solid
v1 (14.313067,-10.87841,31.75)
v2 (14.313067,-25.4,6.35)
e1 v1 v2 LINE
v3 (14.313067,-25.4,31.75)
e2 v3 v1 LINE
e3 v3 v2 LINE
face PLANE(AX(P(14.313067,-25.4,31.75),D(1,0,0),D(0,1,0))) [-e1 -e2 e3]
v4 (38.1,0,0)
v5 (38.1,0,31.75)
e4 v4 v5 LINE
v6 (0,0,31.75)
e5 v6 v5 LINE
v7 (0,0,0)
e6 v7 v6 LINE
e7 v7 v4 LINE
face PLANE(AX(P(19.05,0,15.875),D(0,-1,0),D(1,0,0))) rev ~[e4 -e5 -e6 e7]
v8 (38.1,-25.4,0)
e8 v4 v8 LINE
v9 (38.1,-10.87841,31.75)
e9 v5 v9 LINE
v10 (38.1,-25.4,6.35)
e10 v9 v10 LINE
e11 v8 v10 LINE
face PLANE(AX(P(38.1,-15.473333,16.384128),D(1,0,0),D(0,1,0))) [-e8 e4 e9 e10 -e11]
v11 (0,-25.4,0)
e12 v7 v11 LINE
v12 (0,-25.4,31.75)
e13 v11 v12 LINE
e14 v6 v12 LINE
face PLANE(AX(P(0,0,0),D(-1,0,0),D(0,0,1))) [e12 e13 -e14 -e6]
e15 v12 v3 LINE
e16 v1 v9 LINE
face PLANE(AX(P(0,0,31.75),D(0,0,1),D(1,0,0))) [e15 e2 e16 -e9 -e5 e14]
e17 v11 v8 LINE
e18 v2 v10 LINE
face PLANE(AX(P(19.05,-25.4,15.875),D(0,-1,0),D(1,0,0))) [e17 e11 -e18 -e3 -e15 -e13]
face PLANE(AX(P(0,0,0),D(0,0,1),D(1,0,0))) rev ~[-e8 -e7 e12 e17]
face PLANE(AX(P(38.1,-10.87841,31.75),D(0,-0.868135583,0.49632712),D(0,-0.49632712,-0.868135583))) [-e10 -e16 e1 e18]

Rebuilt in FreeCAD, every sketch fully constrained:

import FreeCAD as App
import Part
import Sketcher
from FreeCAD import Vector
Q = App.Units.Quantity


def add_polygon(sketch, points):
    """Adds a closed chain of lines whose ends are joined by coincident constraints."""
    first, n = sketch.GeometryCount, len(points)
    for a, b in zip(points, points[1:] + points[:1]):
        sketch.addGeometry(Part.LineSegment(App.Vector(*a, 0), App.Vector(*b, 0)), False)
    for i in range(n):
        sketch.addConstraint(Sketcher.Constraint("Coincident", first + i, 2, first + (i + 1) % n, 1))

doc = App.newDocument("Part")
body = doc.addObject("PartDesign::Body", "Body")

# Sketch on XZ plane
sketch1 = body.newObject("Sketcher::SketchObject", "Sketch")
sketch1.AttachmentSupport = (doc.getObject("XZ_Plane"), [""])
sketch1.MapMode = "FlatFace"
add_polygon(sketch1, [(0, 32), (0, 0), (38, 0), (38, 32)])  # lines 0-3
sketch1.addConstraint(Sketcher.Constraint("Vertical", 0))
sketch1.addConstraint(Sketcher.Constraint("Horizontal", 1))
sketch1.addConstraint(Sketcher.Constraint("Vertical", 2))
sketch1.addConstraint(Sketcher.Constraint("Horizontal", 3))
sketch1.addConstraint(Sketcher.Constraint("Coincident", 0, 2, -1, 1))
sketch1.addConstraint(Sketcher.Constraint("DistanceX", 1, 1, 1, 2, Q("1.5 in")))
sketch1.addConstraint(Sketcher.Constraint("DistanceY", 0, 2, 0, 1, Q("1.25 in")))
pad1 = body.newObject("PartDesign::Pad", "Pad")
pad1.Profile = sketch1
pad1.Length = Q("1 in")

# Sketch on XY plane
sketch2 = body.newObject("Sketcher::SketchObject", "Sketch001")
sketch2.AttachmentSupport = (doc.getObject("XY_Plane"), [""])
sketch2.MapMode = "FlatFace"
sketch2.AttachmentOffset = App.Placement(Vector(0, 0, 1.25 * 25.4), App.Rotation())
add_polygon(sketch2, [(14, -11), (14, -25), (38, -25), (38, -11)])  # lines 0-3
sketch2.addConstraint(Sketcher.Constraint("Vertical", 0))
sketch2.addConstraint(Sketcher.Constraint("Horizontal", 1))
sketch2.addConstraint(Sketcher.Constraint("Vertical", 2))
sketch2.addConstraint(Sketcher.Constraint("Horizontal", 3))
sketch2.addConstraint(Sketcher.Constraint("DistanceY", 0, 2, -1, 1, Q("1 in")))
sketch2.addConstraint(Sketcher.Constraint("DistanceX", -1, 1, 1, 2, Q("1.5 in")))
sketch2.addConstraint(Sketcher.Constraint("DistanceY", 0, 2, 0, 1, 14.52159))
sketch2.addConstraint(Sketcher.Constraint("DistanceX", 1, 1, 1, 2, 23.786933))
pocket1 = body.newObject("PartDesign::Pocket", "Pocket")
pocket1.Profile = sketch2
pocket1.Length = Q("1 in")

# Sketch on YZ plane
sketch3 = body.newObject("Sketcher::SketchObject", "Sketch002")
sketch3.AttachmentSupport = (doc.getObject("YZ_Plane"), [""])
sketch3.MapMode = "FlatFace"
sketch3.AttachmentOffset = App.Placement(Vector(0, 0, 1.5 * 25.4), App.Rotation())
add_polygon(sketch3, [(-11, 32), (-25, 6), (-11, 6)])  # lines 0-2
sketch3.addConstraint(Sketcher.Constraint("Horizontal", 1))
sketch3.addConstraint(Sketcher.Constraint("Vertical", 2))
sketch3.addConstraint(Sketcher.Constraint("DistanceY", 2, 1, 2, 2, Q("1 in")))
sketch3.addConstraint(Sketcher.Constraint("DistanceX", 0, 2, -1, 1, Q("1 in")))
sketch3.addConstraint(Sketcher.Constraint("DistanceY", -1, 1, 0, 2, Q("0.25 in")))
sketch3.addConstraint(Sketcher.Constraint("DistanceX", 1, 1, 1, 2, 14.52159))
pad2 = body.newObject("PartDesign::Pad", "Pad001")
pad2.Profile = sketch3
pad2.Length = Q("1 in")
pad2.Reversed = True

doc.recompute()
